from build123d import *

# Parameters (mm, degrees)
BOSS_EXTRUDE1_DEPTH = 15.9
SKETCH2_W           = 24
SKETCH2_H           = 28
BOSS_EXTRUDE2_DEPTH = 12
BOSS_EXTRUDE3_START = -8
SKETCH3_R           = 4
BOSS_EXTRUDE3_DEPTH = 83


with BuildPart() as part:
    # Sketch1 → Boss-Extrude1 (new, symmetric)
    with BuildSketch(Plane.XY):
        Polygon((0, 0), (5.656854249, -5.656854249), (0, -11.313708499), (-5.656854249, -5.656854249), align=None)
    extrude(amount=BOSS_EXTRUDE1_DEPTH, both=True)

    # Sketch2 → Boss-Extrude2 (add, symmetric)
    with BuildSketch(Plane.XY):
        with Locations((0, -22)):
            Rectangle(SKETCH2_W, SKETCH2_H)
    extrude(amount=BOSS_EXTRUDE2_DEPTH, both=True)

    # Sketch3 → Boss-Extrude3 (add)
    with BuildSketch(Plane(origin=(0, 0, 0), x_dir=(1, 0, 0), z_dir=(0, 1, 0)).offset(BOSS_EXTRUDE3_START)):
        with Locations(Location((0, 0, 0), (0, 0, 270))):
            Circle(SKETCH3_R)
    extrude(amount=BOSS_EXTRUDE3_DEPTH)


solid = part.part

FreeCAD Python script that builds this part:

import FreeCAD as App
import Part
import Sketcher

V = App.Vector

doc = App.newDocument("Part")
body = doc.addObject("PartDesign::Body", "Body")

# Sketch on XY plane
sketch1 = doc.addObject("Sketcher::SketchObject", "Sketch")
body.addObject(sketch1)
sketch1.AttachmentSupport = (doc.XY_Plane, [""])
sketch1.MapMode = "FlatFace"
sketch1.addGeometry([
    Part.LineSegment(V(6, -6, 0), V(0, 0, 0)),
    Part.LineSegment(V(0, 0, 0), V(-6, -6, 0)),
    Part.LineSegment(V(-6, -6, 0), V(0, -11, 0)),
    Part.LineSegment(V(0, -11, 0), V(6, -6, 0)),
], False)
sketch1.addConstraint([
    Sketcher.Constraint("Coincident", 0, 2, 1, 1),
    Sketcher.Constraint("Coincident", 1, 2, 2, 1),
    Sketcher.Constraint("Coincident", 2, 2, 3, 1),
    Sketcher.Constraint("Coincident", 3, 2, 0, 1),
    Sketcher.Constraint("Coincident", 0, 2, -1, 1),
    Sketcher.Constraint("Symmetric", 1, 2, 3, 2, -2),
    Sketcher.Constraint("PointOnObject", 2, 2, -2),
    Sketcher.Constraint("Perpendicular", 0, 1),
    Sketcher.Constraint("Perpendicular", 1, 2),
    Sketcher.Constraint("Distance", 0, 8.0),
])
pad1 = doc.addObject("PartDesign::Pad", "Pad")
body.addObject(pad1)
pad1.Profile = sketch1
pad1.Length = 31.8
pad1.Midplane = True

# Sketch on XY plane
sketch2 = doc.addObject("Sketcher::SketchObject", "Sketch001")
body.addObject(sketch2)
sketch2.AttachmentSupport = (doc.XY_Plane, [""])
sketch2.MapMode = "FlatFace"
sketch2.addGeometry([
    Part.LineSegment(V(-12, -8, 0), V(-12, -36, 0)),
    Part.LineSegment(V(-12, -36, 0), V(12, -36, 0)),
    Part.LineSegment(V(12, -36, 0), V(12, -8, 0)),
    Part.LineSegment(V(12, -8, 0), V(-12, -8, 0)),
], False)
sketch2.addConstraint([
    Sketcher.Constraint("Coincident", 0, 2, 1, 1),
    Sketcher.Constraint("Coincident", 1, 2, 2, 1),
    Sketcher.Constraint("Coincident", 2, 2, 3, 1),
    Sketcher.Constraint("Coincident", 3, 2, 0, 1),
    Sketcher.Constraint("Vertical", 0),
    Sketcher.Constraint("Horizontal", 1),
    Sketcher.Constraint("Vertical", 2),
    Sketcher.Constraint("Horizontal", 3),
    Sketcher.Constraint("DistanceX", 1, 1, 1, 2, 24.0),
    Sketcher.Constraint("DistanceY", 0, 2, 0, 1, 28.0),
    Sketcher.Constraint("DistanceX", 0, 2, -1, 1, 12.0),
    Sketcher.Constraint("DistanceY", 0, 2, -1, 1, 36.0),
])
pad2 = doc.addObject("PartDesign::Pad", "Pad001")
body.addObject(pad2)
pad2.Profile = sketch2
pad2.Length = 24
pad2.Midplane = True

# Sketch on XZ plane
sketch3 = doc.addObject("Sketcher::SketchObject", "Sketch002")
body.addObject(sketch3)
sketch3.AttachmentSupport = (doc.XZ_Plane, [""])
sketch3.MapMode = "FlatFace"
sketch3.AttachmentOffset = App.Placement(V(0, 0, 8), App.Rotation())
sketch3.addGeometry(Part.Circle(V(0, 0, 0), V(0, 0, 1), 4), False)
sketch3.addConstraint([
    Sketcher.Constraint("Coincident", 0, 3, -1, 1),
    Sketcher.Constraint("Diameter", 0, 8.0),
])
pad3 = doc.addObject("PartDesign::Pad", "Pad002")
body.addObject(pad3)
pad3.Profile = sketch3
pad3.Length = 83
pad3.Reversed = True

doc.recompute()
